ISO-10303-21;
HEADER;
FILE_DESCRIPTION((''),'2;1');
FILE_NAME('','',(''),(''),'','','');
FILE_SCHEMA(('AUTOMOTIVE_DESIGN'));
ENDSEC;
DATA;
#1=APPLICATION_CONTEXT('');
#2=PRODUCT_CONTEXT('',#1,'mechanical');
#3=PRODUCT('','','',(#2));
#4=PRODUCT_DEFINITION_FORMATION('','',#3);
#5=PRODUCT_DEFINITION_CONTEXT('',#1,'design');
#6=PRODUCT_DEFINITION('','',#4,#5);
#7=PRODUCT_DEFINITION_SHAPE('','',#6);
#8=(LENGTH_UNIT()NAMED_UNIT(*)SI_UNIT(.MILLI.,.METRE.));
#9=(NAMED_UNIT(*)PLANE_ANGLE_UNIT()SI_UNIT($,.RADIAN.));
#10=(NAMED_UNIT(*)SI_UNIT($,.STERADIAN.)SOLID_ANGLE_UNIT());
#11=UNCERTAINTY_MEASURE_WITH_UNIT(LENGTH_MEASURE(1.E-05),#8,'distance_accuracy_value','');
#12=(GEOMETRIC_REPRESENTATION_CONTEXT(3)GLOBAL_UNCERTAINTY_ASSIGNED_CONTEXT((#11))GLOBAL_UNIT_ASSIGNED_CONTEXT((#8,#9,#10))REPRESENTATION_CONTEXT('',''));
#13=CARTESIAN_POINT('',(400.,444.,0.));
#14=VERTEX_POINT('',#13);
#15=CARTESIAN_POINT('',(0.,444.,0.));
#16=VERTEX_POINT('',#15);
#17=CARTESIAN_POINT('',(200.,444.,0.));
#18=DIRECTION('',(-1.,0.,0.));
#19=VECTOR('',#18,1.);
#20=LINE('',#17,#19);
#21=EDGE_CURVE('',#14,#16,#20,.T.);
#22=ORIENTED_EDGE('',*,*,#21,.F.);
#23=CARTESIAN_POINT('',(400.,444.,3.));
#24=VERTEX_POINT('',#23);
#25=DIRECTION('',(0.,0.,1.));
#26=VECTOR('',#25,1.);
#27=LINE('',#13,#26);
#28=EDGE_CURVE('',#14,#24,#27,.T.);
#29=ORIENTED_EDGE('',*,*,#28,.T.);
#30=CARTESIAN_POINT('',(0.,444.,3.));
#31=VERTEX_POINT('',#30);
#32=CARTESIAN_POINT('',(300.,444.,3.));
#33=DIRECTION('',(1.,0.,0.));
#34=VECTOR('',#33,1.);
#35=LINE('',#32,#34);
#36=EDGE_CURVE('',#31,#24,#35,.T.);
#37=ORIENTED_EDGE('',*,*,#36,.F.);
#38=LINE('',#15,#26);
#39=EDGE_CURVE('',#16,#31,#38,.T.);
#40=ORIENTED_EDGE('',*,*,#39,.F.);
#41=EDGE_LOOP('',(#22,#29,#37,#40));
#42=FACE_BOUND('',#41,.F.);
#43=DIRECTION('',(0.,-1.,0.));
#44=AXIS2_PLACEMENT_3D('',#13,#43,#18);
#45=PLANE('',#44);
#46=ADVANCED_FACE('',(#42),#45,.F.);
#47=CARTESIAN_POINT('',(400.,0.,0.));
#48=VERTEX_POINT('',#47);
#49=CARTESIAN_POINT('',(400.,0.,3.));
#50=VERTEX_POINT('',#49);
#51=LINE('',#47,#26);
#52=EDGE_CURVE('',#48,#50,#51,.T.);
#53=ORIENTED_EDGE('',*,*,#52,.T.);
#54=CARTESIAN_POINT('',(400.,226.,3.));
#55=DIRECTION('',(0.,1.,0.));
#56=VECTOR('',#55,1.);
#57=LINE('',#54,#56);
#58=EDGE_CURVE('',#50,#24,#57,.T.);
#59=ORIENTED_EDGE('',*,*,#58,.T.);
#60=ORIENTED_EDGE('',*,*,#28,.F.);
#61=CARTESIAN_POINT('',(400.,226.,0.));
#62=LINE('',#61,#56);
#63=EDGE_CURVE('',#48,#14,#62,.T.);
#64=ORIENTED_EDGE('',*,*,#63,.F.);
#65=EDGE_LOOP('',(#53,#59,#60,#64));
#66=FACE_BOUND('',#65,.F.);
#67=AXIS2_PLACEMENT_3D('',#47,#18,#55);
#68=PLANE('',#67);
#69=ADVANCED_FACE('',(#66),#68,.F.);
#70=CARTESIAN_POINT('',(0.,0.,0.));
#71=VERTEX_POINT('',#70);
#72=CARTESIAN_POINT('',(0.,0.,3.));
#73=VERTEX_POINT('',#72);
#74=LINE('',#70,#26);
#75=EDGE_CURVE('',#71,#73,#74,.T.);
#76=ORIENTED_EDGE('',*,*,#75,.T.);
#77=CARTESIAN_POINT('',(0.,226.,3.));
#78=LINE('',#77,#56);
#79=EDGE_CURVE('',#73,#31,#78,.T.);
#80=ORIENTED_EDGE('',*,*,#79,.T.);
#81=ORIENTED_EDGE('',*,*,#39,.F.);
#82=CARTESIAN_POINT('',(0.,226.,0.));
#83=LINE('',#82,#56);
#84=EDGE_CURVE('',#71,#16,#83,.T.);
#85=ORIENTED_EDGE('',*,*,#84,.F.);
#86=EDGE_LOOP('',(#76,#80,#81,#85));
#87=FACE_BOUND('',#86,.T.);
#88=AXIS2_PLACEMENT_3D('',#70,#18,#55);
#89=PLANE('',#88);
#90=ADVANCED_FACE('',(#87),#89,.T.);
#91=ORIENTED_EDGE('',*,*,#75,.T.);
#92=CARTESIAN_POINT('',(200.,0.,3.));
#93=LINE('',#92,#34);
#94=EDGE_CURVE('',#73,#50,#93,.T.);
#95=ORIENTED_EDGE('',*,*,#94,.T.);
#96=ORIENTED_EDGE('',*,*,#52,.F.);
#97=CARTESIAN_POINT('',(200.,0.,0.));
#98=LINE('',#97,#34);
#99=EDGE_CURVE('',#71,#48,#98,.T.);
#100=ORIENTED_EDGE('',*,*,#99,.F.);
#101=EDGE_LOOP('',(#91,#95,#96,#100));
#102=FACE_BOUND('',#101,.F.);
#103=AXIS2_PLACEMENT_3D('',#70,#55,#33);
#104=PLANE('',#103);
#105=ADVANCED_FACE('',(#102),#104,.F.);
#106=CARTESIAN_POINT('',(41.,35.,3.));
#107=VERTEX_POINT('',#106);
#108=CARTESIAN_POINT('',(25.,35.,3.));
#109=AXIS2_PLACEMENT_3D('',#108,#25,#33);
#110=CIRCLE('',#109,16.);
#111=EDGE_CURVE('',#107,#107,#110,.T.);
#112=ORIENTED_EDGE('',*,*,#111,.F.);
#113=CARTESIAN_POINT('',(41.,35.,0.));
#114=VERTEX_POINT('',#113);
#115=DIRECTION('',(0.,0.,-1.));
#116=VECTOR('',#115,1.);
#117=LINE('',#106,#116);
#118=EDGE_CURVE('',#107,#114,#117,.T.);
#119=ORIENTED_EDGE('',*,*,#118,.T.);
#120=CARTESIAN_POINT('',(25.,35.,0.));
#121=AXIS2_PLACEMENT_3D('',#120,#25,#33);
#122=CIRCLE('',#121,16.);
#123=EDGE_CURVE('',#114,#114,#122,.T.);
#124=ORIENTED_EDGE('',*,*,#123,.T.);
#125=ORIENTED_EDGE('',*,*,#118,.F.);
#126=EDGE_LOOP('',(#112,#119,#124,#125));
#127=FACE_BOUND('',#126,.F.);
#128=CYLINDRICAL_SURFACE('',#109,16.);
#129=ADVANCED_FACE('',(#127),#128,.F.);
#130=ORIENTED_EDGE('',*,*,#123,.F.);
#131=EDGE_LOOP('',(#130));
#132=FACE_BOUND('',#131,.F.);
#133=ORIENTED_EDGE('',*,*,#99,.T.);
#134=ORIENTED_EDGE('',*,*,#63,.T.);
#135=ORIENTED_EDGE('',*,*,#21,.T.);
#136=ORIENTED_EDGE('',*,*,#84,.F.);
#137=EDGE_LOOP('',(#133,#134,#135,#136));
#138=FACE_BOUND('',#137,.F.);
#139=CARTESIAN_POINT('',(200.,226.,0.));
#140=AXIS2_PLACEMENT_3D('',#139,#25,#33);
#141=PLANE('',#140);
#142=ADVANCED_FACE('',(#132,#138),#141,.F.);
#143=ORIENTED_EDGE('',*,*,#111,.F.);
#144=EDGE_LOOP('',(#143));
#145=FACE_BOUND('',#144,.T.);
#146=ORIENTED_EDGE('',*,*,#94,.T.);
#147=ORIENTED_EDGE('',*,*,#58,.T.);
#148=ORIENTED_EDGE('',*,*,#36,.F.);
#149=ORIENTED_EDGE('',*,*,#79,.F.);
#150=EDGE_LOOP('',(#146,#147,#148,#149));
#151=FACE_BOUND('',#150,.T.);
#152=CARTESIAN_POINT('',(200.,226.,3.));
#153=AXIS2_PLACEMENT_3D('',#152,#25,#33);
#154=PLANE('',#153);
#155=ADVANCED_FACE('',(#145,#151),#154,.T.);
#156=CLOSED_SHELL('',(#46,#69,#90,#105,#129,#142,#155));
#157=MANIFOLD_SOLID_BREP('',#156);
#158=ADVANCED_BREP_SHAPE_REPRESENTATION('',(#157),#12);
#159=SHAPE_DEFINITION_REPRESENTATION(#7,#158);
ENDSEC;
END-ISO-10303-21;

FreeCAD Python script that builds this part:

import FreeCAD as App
import Part
import Sketcher

V = App.Vector

doc = App.newDocument("Part")
body = doc.addObject("PartDesign::Body", "Body")

# Sketch on XY plane
sketch1 = body.newObject("Sketcher::SketchObject", "Sketch")
sketch1.AttachmentSupport = (doc.getObject("XY_Plane"), [""])
sketch1.MapMode = "FlatFace"
sketch1.addGeometry([
    Part.LineSegment(V(0, 452, 0), V(0, 0, 0)),
    Part.LineSegment(V(0, 0, 0), V(400, 0, 0)),
    Part.LineSegment(V(400, 0, 0), V(400, 452, 0)),
    Part.LineSegment(V(400, 452, 0), V(0, 452, 0)),
], False)
sketch1.addConstraint([
    Sketcher.Constraint("Coincident", 0, 2, 1, 1),
    Sketcher.Constraint("Coincident", 1, 2, 2, 1),
    Sketcher.Constraint("Coincident", 2, 2, 3, 1),
    Sketcher.Constraint("Coincident", 3, 2, 0, 1),
    Sketcher.Constraint("Vertical", 0),
    Sketcher.Constraint("Horizontal", 1),
    Sketcher.Constraint("Vertical", 2),
    Sketcher.Constraint("Horizontal", 3),
    Sketcher.Constraint("Coincident", 0, 2, -1, 1),
    Sketcher.Constraint("DistanceX", 1, 1, 1, 2, 400.0),
    Sketcher.Constraint("DistanceY", 0, 2, 0, 1, 452.0),
])
pad1 = body.newObject("PartDesign::Pad", "Pad")
pad1.Profile = sketch1
pad1.Length = 3

# Sketch on XY plane
sketch2 = body.newObject("Sketcher::SketchObject", "Sketch001")
sketch2.AttachmentSupport = (doc.getObject("XY_Plane"), [""])
sketch2.MapMode = "FlatFace"
sketch2.AttachmentOffset = App.Placement(V(0, 0, 3), App.Rotation())
sketch2.addGeometry(Part.Circle(V(25, 35, 0), V(0, 0, 1), 16), False)
sketch2.addConstraint([
    Sketcher.Constraint("Diameter", 0, 32.0),
    Sketcher.Constraint("DistanceX", -1, 1, 0, 3, 25.0),
    Sketcher.Constraint("DistanceY", -1, 1, 0, 3, 35.0),
])
pocket1 = body.newObject("PartDesign::Pocket", "Pocket")
pocket1.Profile = sketch2
pocket1.Length = 10

# Sketch on XY plane
sketch3 = body.newObject("Sketcher::SketchObject", "Sketch002")
sketch3.AttachmentSupport = (doc.getObject("XY_Plane"), [""])
sketch3.MapMode = "FlatFace"
sketch3.addGeometry([
    Part.LineSegment(V(400, 452, 0), V(400, 444, 0)),
    Part.LineSegment(V(400, 444, 0), V(0, 444, 0)),
    Part.LineSegment(V(0, 444, 0), V(0, 452, 0)),
    Part.LineSegment(V(0, 452, 0), V(400, 452, 0)),
], False)
sketch3.addConstraint([
    Sketcher.Constraint("Coincident", 0, 2, 1, 1),
    Sketcher.Constraint("Coincident", 1, 2, 2, 1),
    Sketcher.Constraint("Coincident", 2, 2, 3, 1),
    Sketcher.Constraint("Coincident", 3, 2, 0, 1),
    Sketcher.Constraint("Vertical", 0),
    Sketcher.Constraint("Horizontal", 1),
    Sketcher.Constraint("Vertical", 2),
    Sketcher.Constraint("Horizontal", 3),
    Sketcher.Constraint("PointOnObject", 1, 2, -2),
    Sketcher.Constraint("DistanceX", 1, 2, 1, 1, 400.0),
    Sketcher.Constraint("DistanceY", 0, 2, 0, 1, 8.0),
    Sketcher.Constraint("DistanceY", -1, 1, 0, 2, 444.0),
])
pocket2 = body.newObject("PartDesign::Pocket", "Pocket001")
pocket2.Profile = sketch3
pocket2.Type = "ThroughAll"
pocket2.Reversed = True

doc.recompute()
